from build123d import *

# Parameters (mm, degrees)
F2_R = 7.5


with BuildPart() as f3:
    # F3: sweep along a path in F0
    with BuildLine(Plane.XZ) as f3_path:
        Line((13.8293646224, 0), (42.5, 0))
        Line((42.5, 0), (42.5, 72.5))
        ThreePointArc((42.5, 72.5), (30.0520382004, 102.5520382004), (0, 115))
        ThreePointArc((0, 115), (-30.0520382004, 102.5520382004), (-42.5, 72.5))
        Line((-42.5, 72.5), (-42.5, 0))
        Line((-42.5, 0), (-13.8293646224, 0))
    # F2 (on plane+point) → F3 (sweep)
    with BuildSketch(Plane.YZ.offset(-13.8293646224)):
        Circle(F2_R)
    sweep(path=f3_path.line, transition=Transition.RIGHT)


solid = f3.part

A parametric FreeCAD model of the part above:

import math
import FreeCAD as App
import Part
import Sketcher

V = App.Vector

doc = App.newDocument("Part")
body = doc.addObject("PartDesign::Body", "Body")

# Sketch on YZ plane
sketch1 = body.newObject("Sketcher::SketchObject", "Sketch")
sketch1.AttachmentSupport = (doc.getObject("YZ_Plane"), [""])
sketch1.MapMode = "FlatFace"
sketch1.AttachmentOffset = App.Placement(V(0, 0, -13.829365), App.Rotation())
sketch1.addGeometry(Part.Circle(V(0, 0, 0), V(0, 0, 1), 8), False)
sketch1.addConstraint(Sketcher.Constraint("Coincident", 0, 3, -1, 1))
sketch1.addConstraint(Sketcher.Constraint("Diameter", 0, 15.0))

# Sketch on XZ plane
sketch2 = body.newObject("Sketcher::SketchObject", "Sketch001")
sketch2.AttachmentSupport = (doc.getObject("XZ_Plane"), [""])
sketch2.MapMode = "FlatFace"
sketch2.addGeometry(Part.LineSegment(V(14, 0, 0), V(42, 0, 0)), False)
sketch2.addGeometry(Part.LineSegment(V(42, 0, 0), V(42, 72, 0)), False)
sketch2.addGeometry(Part.ArcOfCircle(Part.Circle(V(0, 72, 0), V(0, 0, 1), 42), math.radians(0), math.radians(90)), False)
sketch2.addGeometry(Part.ArcOfCircle(Part.Circle(V(0, 72, 0), V(0, 0, 1), 42), math.radians(90), math.radians(180)), False)
sketch2.addGeometry(Part.LineSegment(V(-42, 72, 0), V(-42, 0, 0)), False)
sketch2.addGeometry(Part.LineSegment(V(-42, 0, 0), V(-14, 0, 0)), False)
sketch2.addConstraint(Sketcher.Constraint("Coincident", 0, 2, 1, 1))
sketch2.addConstraint(Sketcher.Constraint("Tangent", 1, 2, 2, 1))
sketch2.addConstraint(Sketcher.Constraint("Tangent", 2, 2, 3, 1))
sketch2.addConstraint(Sketcher.Constraint("Tangent", 3, 2, 4, 1))
sketch2.addConstraint(Sketcher.Constraint("Coincident", 4, 2, 5, 1))
sketch2.addConstraint(Sketcher.Constraint("Horizontal", 0))
sketch2.addConstraint(Sketcher.Constraint("Vertical", 1))
sketch2.addConstraint(Sketcher.Constraint("Vertical", 4))
sketch2.addConstraint(Sketcher.Constraint("Horizontal", 5))
sketch2.addConstraint(Sketcher.Constraint("Equal", 2, 3))
sketch2.addConstraint(Sketcher.Constraint("Symmetric", 0, 2, 4, 2, -1, 1))
sketch2.addConstraint(Sketcher.Constraint("Symmetric", 0, 1, 5, 2, -2))
sketch2.addConstraint(Sketcher.Constraint("PointOnObject", 2, 2, -2))
sketch2.addConstraint(Sketcher.Constraint("Radius", 2, 42.5))
sketch2.addConstraint(Sketcher.Constraint("DistanceY", 1, 1, 1, 2, 72.5))
sketch2.addConstraint(Sketcher.Constraint("DistanceX", 0, 1, 0, 2, 28.670635))
doc.recompute()

additivepipe = body.newObject("PartDesign::AdditivePipe", "AdditivePipe")
additivepipe.Profile = sketch1
additivepipe.Spine = (sketch2, ["Edge1", "Edge2", "Edge3", "Edge4", "Edge5", "Edge6"])
additivepipe.Transition = "Right corner"

doc.recompute()
